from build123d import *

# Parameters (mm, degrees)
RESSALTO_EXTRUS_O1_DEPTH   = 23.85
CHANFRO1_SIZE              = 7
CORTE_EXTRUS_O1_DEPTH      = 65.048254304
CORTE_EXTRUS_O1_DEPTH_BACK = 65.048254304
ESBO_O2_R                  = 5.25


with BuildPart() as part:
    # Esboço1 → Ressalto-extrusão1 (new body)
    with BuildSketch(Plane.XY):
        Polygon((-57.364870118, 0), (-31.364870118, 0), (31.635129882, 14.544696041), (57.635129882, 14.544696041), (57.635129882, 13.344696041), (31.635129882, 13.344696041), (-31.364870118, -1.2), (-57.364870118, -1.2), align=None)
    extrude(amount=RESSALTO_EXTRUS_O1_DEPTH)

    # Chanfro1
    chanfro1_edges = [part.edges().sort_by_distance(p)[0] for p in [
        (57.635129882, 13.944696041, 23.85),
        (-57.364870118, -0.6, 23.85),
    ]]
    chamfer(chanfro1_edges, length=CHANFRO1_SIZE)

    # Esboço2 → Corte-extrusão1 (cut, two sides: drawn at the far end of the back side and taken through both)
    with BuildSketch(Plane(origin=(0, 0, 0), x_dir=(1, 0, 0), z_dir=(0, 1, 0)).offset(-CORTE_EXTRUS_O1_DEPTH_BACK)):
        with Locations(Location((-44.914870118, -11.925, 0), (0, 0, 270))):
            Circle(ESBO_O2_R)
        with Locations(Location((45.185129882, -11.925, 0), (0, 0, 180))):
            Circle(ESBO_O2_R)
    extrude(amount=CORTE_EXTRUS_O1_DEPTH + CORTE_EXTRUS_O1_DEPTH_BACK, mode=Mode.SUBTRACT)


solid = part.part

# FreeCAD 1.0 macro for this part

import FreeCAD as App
import Part
import Sketcher
from FreeCAD import Vector
Q = App.Units.Quantity


def edges_at(feature, points):
    """Names of the edges that pass closest to the given points."""
    edges = feature.Shape.Edges
    near = lambda p: min(range(len(edges)), key=lambda i: edges[i].distToShape(Part.Vertex(*p))[0])
    return sorted({f"Edge{near(p) + 1}" for p in points})


def add_polygon(sketch, points):
    """Adds a closed chain of lines whose ends are joined by coincident constraints."""
    first, n = sketch.GeometryCount, len(points)
    for a, b in zip(points, points[1:] + points[:1]):
        sketch.addGeometry(Part.LineSegment(App.Vector(*a, 0), App.Vector(*b, 0)), False)
    for i in range(n):
        sketch.addConstraint(Sketcher.Constraint("Coincident", first + i, 2, first + (i + 1) % n, 1))

doc = App.newDocument("Part")
body = doc.addObject("PartDesign::Body", "Body")

# Sketch on XY plane
sketch1 = body.newObject("Sketcher::SketchObject", "Sketch")
sketch1.AttachmentSupport = (doc.getObject("XY_Plane"), [""])
sketch1.MapMode = "FlatFace"
add_polygon(sketch1, [(-31.36487, 0), (-57.36487, 0), (-57.36487, -1.2), (-31.36487, -1.2), (31.63513, 13.344696), (57.63513, 13.344696), (57.63513, 14.544696), (31.63513, 14.544696)])  # lines 0-7
sketch1.addConstraint(Sketcher.Constraint("Horizontal", 0))
sketch1.addConstraint(Sketcher.Constraint("Vertical", 1))
sketch1.addConstraint(Sketcher.Constraint("Horizontal", 2))
sketch1.addConstraint(Sketcher.Constraint("Horizontal", 4))
sketch1.addConstraint(Sketcher.Constraint("Vertical", 5))
sketch1.addConstraint(Sketcher.Constraint("Horizontal", 6))
sketch1.addConstraint(Sketcher.Constraint("PointOnObject", 0, 2, -1))
sketch1.addConstraint(Sketcher.Constraint("Parallel", 3, 7))
sketch1.addConstraint(Sketcher.Constraint("Vertical", 3, 2, 6, 2))
sketch1.addConstraint(Sketcher.Constraint("Vertical", 2, 2, 7, 2))
sketch1.addConstraint(Sketcher.Constraint("Equal", 2, 4))
sketch1.addConstraint(Sketcher.Constraint("DistanceX", 0, 2, 0, 1, 26.0))
sketch1.addConstraint(Sketcher.Constraint("Angle", 3, Q("13 deg")))
sketch1.addConstraint(Sketcher.Constraint("DistanceY", 1, 2, 1, 1, 1.2))
sketch1.addConstraint(Sketcher.Constraint("DistanceX", 2, 2, 3, 2, 63.0))
sketch1.addConstraint(Sketcher.Constraint("DistanceX", 0, 2, -1, 1, 57.36487))
pad1 = body.newObject("PartDesign::Pad", "Pad")
pad1.Profile = sketch1
pad1.Length = 23.85
doc.recompute()

chamfer = body.newObject("PartDesign::Chamfer", "Chamfer")
chamfer.Base = (pad1, edges_at(pad1, [(57.635, 13.945, 23.85), (-57.365, -0.6, 23.85)]))
chamfer.Size = 7

# Sketch on XZ plane
sketch2 = body.newObject("Sketcher::SketchObject", "Sketch001")
sketch2.AttachmentSupport = (doc.getObject("XZ_Plane"), [""])
sketch2.MapMode = "FlatFace"
sketch2.addGeometry(Part.Circle(Vector(-44.91487, 11.925, 0), Vector(0, 0, 1), 5.25), False)
sketch2.addGeometry(Part.Circle(Vector(45.18513, 11.925, 0), Vector(0, 0, 1), 5.25), False)
sketch2.addConstraint(Sketcher.Constraint("Equal", 0, 1))
sketch2.addConstraint(Sketcher.Constraint("Horizontal", 0, 3, 1, 3))
sketch2.addConstraint(Sketcher.Constraint("Diameter", 0, 10.5))
sketch2.addConstraint(Sketcher.Constraint("DistanceX", 0, 3, 1, 3, 90.1))
sketch2.addConstraint(Sketcher.Constraint("DistanceY", -1, 1, 0, 3, 11.925))
sketch2.addConstraint(Sketcher.Constraint("DistanceX", 0, 3, -1, 1, 44.91487))
pocket1 = body.newObject("PartDesign::Pocket", "Pocket")
pocket1.Profile = sketch2
pocket1.Type = "ThroughAll"
pocket1.Midplane = True

doc.recompute()
